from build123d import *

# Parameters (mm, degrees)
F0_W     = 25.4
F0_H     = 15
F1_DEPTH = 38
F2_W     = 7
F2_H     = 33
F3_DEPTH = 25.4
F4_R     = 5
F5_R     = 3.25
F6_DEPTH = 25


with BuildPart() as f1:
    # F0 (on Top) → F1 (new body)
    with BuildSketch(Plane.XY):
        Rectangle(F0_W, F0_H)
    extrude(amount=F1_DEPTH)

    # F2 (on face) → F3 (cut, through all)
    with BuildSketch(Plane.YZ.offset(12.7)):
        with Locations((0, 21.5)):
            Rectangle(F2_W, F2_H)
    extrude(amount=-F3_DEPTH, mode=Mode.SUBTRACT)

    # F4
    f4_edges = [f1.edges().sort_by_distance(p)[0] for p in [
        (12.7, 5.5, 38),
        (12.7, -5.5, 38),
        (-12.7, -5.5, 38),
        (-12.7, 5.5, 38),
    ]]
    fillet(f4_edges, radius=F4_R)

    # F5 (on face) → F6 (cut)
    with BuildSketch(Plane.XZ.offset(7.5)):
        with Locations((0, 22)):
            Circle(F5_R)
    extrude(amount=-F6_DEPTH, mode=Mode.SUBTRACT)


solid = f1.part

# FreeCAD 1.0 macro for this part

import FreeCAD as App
import Part
import Sketcher
from FreeCAD import Vector
Q = App.Units.Quantity


def edges_at(feature, points):
    """Names of the edges that pass closest to the given points."""
    edges = feature.Shape.Edges
    near = lambda p: min(range(len(edges)), key=lambda i: edges[i].distToShape(Part.Vertex(*p))[0])
    return sorted({f"Edge{near(p) + 1}" for p in points})


def add_polygon(sketch, points):
    """Adds a closed chain of lines whose ends are joined by coincident constraints."""
    first, n = sketch.GeometryCount, len(points)
    for a, b in zip(points, points[1:] + points[:1]):
        sketch.addGeometry(Part.LineSegment(App.Vector(*a, 0), App.Vector(*b, 0)), False)
    for i in range(n):
        sketch.addConstraint(Sketcher.Constraint("Coincident", first + i, 2, first + (i + 1) % n, 1))

doc = App.newDocument("Part")
body = doc.addObject("PartDesign::Body", "Body")

# Sketch on XY plane
sketch1 = body.newObject("Sketcher::SketchObject", "Sketch")
sketch1.AttachmentSupport = (doc.getObject("XY_Plane"), [""])
sketch1.MapMode = "FlatFace"
add_polygon(sketch1, [(-13, 8), (-13, -8), (13, -8), (13, 8)])  # lines 0-3
sketch1.addConstraint(Sketcher.Constraint("Vertical", 0))
sketch1.addConstraint(Sketcher.Constraint("Horizontal", 1))
sketch1.addConstraint(Sketcher.Constraint("Vertical", 2))
sketch1.addConstraint(Sketcher.Constraint("Horizontal", 3))
sketch1.addConstraint(Sketcher.Constraint("Symmetric", 0, 2, 2, 2, -1, 1))
sketch1.addConstraint(Sketcher.Constraint("DistanceY", 0, 2, 0, 1, Q("15 mm")))
sketch1.addConstraint(Sketcher.Constraint("DistanceX", 1, 1, 1, 2, Q("25.4 mm")))
pad1 = body.newObject("PartDesign::Pad", "Pad")
pad1.Profile = sketch1
pad1.Length = 38

# Sketch on YZ plane
sketch2 = body.newObject("Sketcher::SketchObject", "Sketch001")
sketch2.AttachmentSupport = (doc.getObject("YZ_Plane"), [""])
sketch2.MapMode = "FlatFace"
sketch2.AttachmentOffset = App.Placement(Vector(0, 0, 12.7), App.Rotation())
add_polygon(sketch2, [(-4, 38), (-4, 5), (4, 5), (4, 38)])  # lines 0-3
sketch2.addConstraint(Sketcher.Constraint("Vertical", 0))
sketch2.addConstraint(Sketcher.Constraint("Horizontal", 1))
sketch2.addConstraint(Sketcher.Constraint("Vertical", 2))
sketch2.addConstraint(Sketcher.Constraint("Horizontal", 3))
sketch2.addConstraint(Sketcher.Constraint("DistanceX", 1, 1, 1, 2, Q("7 mm")))
sketch2.addConstraint(Sketcher.Constraint("DistanceY", 0, 2, 0, 1, Q("33 mm")))
sketch2.addConstraint(Sketcher.Constraint("DistanceY", -1, 1, 0, 2, Q("5 mm")))
sketch2.addConstraint(Sketcher.Constraint("DistanceX", 0, 2, -1, 1, Q("3.5 mm")))
pocket1 = body.newObject("PartDesign::Pocket", "Pocket")
pocket1.Profile = sketch2
pocket1.Type = "ThroughAll"
doc.recompute()

fillet = body.newObject("PartDesign::Fillet", "Fillet")
fillet.Base = (pocket1, edges_at(pocket1, [
    (12.7, 5.5, 38),
    (12.7, -5.5, 38),
    (-12.7, -5.5, 38),
    (-12.7, 5.5, 38),
]))
fillet.Radius = 5

# Sketch on XZ plane
sketch3 = body.newObject("Sketcher::SketchObject", "Sketch002")
sketch3.AttachmentSupport = (doc.getObject("XZ_Plane"), [""])
sketch3.MapMode = "FlatFace"
sketch3.AttachmentOffset = App.Placement(Vector(0, 0, 7.5), App.Rotation())
sketch3.addGeometry(Part.Circle(Vector(0, 22, 0), Vector(0, 0, 1), 3.2), False)
sketch3.addConstraint(Sketcher.Constraint("PointOnObject", 0, 3, -2))
sketch3.addConstraint(Sketcher.Constraint("Diameter", 0, Q("6.5 mm")))
sketch3.addConstraint(Sketcher.Constraint("DistanceY", -1, 1, 0, 3, Q("22 mm")))
pocket2 = body.newObject("PartDesign::Pocket", "Pocket001")
pocket2.Profile = sketch3
pocket2.Length = 25

doc.recompute()
